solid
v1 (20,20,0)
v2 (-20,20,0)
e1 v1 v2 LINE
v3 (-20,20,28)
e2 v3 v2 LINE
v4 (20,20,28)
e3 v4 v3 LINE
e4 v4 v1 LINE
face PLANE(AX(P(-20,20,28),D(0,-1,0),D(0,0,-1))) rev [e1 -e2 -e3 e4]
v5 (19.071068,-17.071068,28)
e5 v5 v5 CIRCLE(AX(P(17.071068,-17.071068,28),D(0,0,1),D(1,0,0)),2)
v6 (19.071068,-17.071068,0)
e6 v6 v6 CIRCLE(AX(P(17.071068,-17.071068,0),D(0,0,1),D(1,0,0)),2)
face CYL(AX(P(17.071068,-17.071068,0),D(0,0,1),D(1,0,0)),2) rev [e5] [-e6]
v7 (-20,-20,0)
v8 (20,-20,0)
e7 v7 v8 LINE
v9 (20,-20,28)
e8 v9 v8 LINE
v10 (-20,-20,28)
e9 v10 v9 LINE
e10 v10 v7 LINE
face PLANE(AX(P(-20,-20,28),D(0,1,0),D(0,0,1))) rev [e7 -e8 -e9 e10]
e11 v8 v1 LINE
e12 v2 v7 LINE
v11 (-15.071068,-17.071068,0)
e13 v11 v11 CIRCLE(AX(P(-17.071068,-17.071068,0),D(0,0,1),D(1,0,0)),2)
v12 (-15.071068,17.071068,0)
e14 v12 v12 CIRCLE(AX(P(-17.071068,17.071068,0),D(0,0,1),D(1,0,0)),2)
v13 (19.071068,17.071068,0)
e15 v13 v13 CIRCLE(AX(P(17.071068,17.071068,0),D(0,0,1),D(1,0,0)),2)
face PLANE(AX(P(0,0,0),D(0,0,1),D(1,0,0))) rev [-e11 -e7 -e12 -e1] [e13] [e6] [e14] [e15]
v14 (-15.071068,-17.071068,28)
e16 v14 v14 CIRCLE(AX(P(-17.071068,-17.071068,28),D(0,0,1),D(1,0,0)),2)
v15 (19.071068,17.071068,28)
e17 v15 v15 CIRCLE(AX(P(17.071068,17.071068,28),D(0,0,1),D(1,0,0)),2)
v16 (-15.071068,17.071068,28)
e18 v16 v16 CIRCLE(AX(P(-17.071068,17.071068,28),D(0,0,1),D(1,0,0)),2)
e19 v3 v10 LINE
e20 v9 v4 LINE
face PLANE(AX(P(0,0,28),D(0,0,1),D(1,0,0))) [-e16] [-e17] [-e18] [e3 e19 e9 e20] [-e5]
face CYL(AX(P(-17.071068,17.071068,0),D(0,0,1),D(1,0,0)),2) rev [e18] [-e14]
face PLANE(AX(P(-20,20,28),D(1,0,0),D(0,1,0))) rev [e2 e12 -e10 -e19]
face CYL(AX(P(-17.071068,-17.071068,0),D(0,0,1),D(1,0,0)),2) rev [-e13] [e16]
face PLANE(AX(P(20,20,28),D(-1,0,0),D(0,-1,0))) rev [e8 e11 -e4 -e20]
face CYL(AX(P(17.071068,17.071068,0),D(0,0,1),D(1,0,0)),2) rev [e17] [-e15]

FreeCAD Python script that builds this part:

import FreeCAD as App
import Part
import Sketcher

V = App.Vector

doc = App.newDocument("Part")
body = doc.addObject("PartDesign::Body", "Body")

# Sketch on XY plane
sketch1 = body.newObject("Sketcher::SketchObject", "Sketch")
sketch1.AttachmentSupport = (doc.getObject("XY_Plane"), [""])
sketch1.MapMode = "FlatFace"
sketch1.addGeometry(Part.LineSegment(V(-20, 20, 0), V(-20, -20, 0)), False)
sketch1.addGeometry(Part.LineSegment(V(-20, -20, 0), V(20, -20, 0)), False)
sketch1.addGeometry(Part.LineSegment(V(20, -20, 0), V(20, 20, 0)), False)
sketch1.addGeometry(Part.LineSegment(V(20, 20, 0), V(-20, 20, 0)), False)
sketch1.addConstraint(Sketcher.Constraint("Coincident", 0, 2, 1, 1))
sketch1.addConstraint(Sketcher.Constraint("Coincident", 1, 2, 2, 1))
sketch1.addConstraint(Sketcher.Constraint("Coincident", 2, 2, 3, 1))
sketch1.addConstraint(Sketcher.Constraint("Coincident", 3, 2, 0, 1))
sketch1.addConstraint(Sketcher.Constraint("Vertical", 0))
sketch1.addConstraint(Sketcher.Constraint("Horizontal", 1))
sketch1.addConstraint(Sketcher.Constraint("Vertical", 2))
sketch1.addConstraint(Sketcher.Constraint("Horizontal", 3))
sketch1.addConstraint(Sketcher.Constraint("Symmetric", 0, 2, 2, 2, -1, 1))
sketch1.addConstraint(Sketcher.Constraint("Equal", 3, 0))
sketch1.addConstraint(Sketcher.Constraint("DistanceX", 1, 1, 1, 2, 40.0))
pad1 = body.newObject("PartDesign::Pad", "Pad")
pad1.Profile = sketch1
pad1.Length = 28

# Sketch on XY plane
sketch2 = body.newObject("Sketcher::SketchObject", "Sketch001")
sketch2.AttachmentSupport = (doc.getObject("XY_Plane"), [""])
sketch2.MapMode = "FlatFace"
sketch2.AttachmentOffset = App.Placement(V(0, 0, 28), App.Rotation())
sketch2.addGeometry(Part.Circle(V(-17.071068, 17.071068, 0), V(0, 0, 1), 2), False)
sketch2.addGeometry(Part.Circle(V(-17.071068, -17.071068, 0), V(0, 0, 1), 2), False)
sketch2.addGeometry(Part.Circle(V(17.071068, 17.071068, 0), V(0, 0, 1), 2), False)
sketch2.addGeometry(Part.Circle(V(17.071068, -17.071068, 0), V(0, 0, 1), 2), False)
sketch2.addConstraint(Sketcher.Constraint("Equal", 0, 1))
sketch2.addConstraint(Sketcher.Constraint("Equal", 1, 2))
sketch2.addConstraint(Sketcher.Constraint("Equal", 2, 3))
sketch2.addConstraint(Sketcher.Constraint("Symmetric", 1, 3, 2, 3, -1, 1))
sketch2.addConstraint(Sketcher.Constraint("Symmetric", 0, 3, 3, 3, -1, 1))
sketch2.addConstraint(Sketcher.Constraint("Symmetric", 0, 3, 2, 3, -2))
sketch2.addConstraint(Sketcher.Constraint("Diameter", 0, 4.0))
sketch2.addConstraint(Sketcher.Constraint("DistanceX", 0, 3, -1, 1, 17.071068))
sketch2.addConstraint(Sketcher.Constraint("DistanceY", -1, 1, 0, 3, 17.071068))
pocket1 = body.newObject("PartDesign::Pocket", "Pocket")
pocket1.Profile = sketch2
pocket1.Type = "ThroughAll"

doc.recompute()
